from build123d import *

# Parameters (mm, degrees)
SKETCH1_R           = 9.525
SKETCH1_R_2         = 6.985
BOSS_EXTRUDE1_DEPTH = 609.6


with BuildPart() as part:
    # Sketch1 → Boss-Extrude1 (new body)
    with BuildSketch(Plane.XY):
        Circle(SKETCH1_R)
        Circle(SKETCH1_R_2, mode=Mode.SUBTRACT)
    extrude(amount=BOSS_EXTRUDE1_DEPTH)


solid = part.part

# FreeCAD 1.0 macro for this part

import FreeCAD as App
import Part
import Sketcher
from FreeCAD import Vector
Q = App.Units.Quantity

doc = App.newDocument("Part")
params = doc.addObject("Spreadsheet::Sheet", "Params")
for row, (alias, value) in enumerate([
    ("sketch1_diameter", "0.75 in"),
    ("sketch1_diameter2", "0.55 in"),
    ("pad1_length", "24 in"),
], start=1):
    params.set(f"A{row}", alias)
    params.set(f"B{row}", "=" + value)
    params.setAlias(f"B{row}", alias)

body = doc.addObject("PartDesign::Body", "Body")

# Sketch on XY plane
sketch1 = body.newObject("Sketcher::SketchObject", "Sketch")
sketch1.AttachmentSupport = (doc.getObject("XY_Plane"), [""])
sketch1.MapMode = "FlatFace"
sketch1.addGeometry([
    Part.Circle(Vector(0, 0, 0), Vector(0, 0, 1), 10),
    Part.Circle(Vector(0, 0, 0), Vector(0, 0, 1), 7),
], False)
sketch1.addConstraint([
    Sketcher.Constraint("Coincident", 0, 3, -1, 1),
    Sketcher.Constraint("Coincident", 1, 3, -1, 1),
    Sketcher.Constraint("Diameter", 0, Q("0.75 in")),
    Sketcher.Constraint("Diameter", 1, Q("0.55 in")),
])
sketch1.setExpression("Constraints[2]", "Params.sketch1_diameter")
sketch1.setExpression("Constraints[3]", "Params.sketch1_diameter2")
pad1 = body.newObject("PartDesign::Pad", "Pad")
pad1.Profile = sketch1
pad1.setExpression("Length", "Params.pad1_length")

doc.recompute()
